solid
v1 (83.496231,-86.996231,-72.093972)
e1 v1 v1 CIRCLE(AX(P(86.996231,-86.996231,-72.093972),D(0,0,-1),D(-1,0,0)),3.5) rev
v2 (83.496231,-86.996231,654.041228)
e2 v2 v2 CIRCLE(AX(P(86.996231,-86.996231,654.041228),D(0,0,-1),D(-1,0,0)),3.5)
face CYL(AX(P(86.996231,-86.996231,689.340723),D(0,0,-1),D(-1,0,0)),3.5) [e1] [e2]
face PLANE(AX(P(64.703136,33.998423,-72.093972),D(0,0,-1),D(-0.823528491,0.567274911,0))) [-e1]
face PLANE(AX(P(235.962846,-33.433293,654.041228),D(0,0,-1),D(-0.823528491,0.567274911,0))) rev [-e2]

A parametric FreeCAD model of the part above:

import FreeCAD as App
import Part
import Sketcher
Q = App.Units.Quantity

doc = App.newDocument("Part")
params = doc.addObject("Spreadsheet::Sheet", "Params")
for row, (alias, value) in enumerate([
    ("sketch1_diameter", "7 mm"),
    ("pad1_length", "654.041228 mm"),
    ("pad1_length2", "72.093972 mm"),
], start=1):
    params.set(f"A{row}", alias)
    params.set(f"B{row}", "=" + value)
    params.setAlias(f"B{row}", alias)

body = doc.addObject("PartDesign::Body", "Body")

sketch1 = body.newObject("Sketcher::SketchObject", "Sketch")
sketch1.AttachmentSupport = (doc.getObject("XY_Plane"), [""])
sketch1.MapMode = "FlatFace"
sketch1.addGeometry(Part.Circle(App.Vector(87, -87, 0), App.Vector(0, 0, 1), 3.5), False)
sketch1.addConstraint([
    Sketcher.Constraint("Diameter", 0, Q("7 mm")),
    Sketcher.Constraint("DistanceX", -1, 1, 0, 3, Q("86.996231 mm")),
    Sketcher.Constraint("DistanceY", 0, 3, -1, 1, Q("86.996231 mm")),
])
sketch1.setExpression("Constraints[0]", "Params.sketch1_diameter")
pad1 = body.newObject("PartDesign::Pad", "Pad")
pad1.Profile = sketch1
pad1.Type = "TwoLengths"
pad1.setExpression("Length", "Params.pad1_length")
pad1.setExpression("Length2", "Params.pad1_length2")

doc.recompute()
